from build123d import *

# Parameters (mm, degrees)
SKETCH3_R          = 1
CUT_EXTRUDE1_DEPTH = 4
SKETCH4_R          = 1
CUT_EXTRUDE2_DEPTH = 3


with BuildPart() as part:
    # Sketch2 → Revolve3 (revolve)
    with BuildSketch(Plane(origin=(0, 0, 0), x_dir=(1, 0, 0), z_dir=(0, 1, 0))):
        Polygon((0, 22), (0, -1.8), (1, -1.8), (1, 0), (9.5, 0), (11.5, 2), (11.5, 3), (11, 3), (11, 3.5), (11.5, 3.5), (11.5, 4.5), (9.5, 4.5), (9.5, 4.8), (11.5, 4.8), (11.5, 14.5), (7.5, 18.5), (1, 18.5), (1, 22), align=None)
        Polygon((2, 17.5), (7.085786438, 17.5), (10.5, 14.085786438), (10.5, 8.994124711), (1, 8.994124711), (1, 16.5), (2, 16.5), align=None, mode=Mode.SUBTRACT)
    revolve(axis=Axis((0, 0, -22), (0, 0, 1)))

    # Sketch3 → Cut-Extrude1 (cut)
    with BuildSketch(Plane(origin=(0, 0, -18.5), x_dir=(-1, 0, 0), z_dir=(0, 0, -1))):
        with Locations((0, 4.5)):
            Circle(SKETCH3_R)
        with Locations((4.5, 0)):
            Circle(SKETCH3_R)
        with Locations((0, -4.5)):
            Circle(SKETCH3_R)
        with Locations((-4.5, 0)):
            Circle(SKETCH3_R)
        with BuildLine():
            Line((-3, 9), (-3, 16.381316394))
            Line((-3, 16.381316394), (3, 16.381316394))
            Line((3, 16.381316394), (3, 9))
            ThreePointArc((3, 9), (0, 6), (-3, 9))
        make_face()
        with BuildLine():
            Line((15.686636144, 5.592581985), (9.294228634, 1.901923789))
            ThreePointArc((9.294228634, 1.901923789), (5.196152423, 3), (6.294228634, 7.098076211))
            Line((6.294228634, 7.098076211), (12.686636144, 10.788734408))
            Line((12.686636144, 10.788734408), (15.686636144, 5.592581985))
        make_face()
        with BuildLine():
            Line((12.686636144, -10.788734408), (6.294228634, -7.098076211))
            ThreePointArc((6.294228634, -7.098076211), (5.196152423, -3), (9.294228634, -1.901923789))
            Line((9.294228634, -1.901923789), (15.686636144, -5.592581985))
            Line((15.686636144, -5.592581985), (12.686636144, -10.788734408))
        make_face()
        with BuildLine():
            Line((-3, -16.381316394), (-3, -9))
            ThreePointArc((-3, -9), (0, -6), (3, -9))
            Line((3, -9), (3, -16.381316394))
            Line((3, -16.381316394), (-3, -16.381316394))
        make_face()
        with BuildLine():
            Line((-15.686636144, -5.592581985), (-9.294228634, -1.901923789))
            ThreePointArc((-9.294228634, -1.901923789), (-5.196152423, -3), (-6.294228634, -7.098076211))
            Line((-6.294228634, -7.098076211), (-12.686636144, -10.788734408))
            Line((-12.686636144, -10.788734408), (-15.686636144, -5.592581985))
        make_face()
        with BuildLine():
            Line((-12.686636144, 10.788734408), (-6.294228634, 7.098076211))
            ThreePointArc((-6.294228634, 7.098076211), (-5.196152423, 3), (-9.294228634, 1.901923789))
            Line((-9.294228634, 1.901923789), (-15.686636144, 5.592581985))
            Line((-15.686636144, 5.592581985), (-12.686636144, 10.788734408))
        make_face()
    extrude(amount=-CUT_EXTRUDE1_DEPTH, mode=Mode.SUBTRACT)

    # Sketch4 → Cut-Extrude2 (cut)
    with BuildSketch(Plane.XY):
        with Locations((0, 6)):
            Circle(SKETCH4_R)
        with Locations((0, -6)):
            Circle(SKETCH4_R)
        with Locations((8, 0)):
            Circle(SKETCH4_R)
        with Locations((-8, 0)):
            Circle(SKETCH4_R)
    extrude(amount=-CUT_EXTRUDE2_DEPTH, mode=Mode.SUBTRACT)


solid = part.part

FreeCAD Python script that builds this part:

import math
import FreeCAD as App
import Part
import Sketcher
from FreeCAD import Vector
Q = App.Units.Quantity

doc = App.newDocument("Part")
body = doc.addObject("PartDesign::Body", "Body")

# Sketch on XZ plane
sketch1 = body.newObject("Sketcher::SketchObject", "Sketch")
sketch1.AttachmentSupport = (doc.getObject("XZ_Plane"), [""])
sketch1.MapMode = "FlatFace"
sketch1.addGeometry(Part.LineSegment(Vector(0, -22, 0), Vector(0, 1.8, 0)), False)
sketch1.addGeometry(Part.LineSegment(Vector(0, 1.8, 0), Vector(1, 1.8, 0)), False)
sketch1.addGeometry(Part.LineSegment(Vector(1, 1.8, 0), Vector(1, 0, 0)), False)
sketch1.addGeometry(Part.LineSegment(Vector(1, 0, 0), Vector(9.5, 0, 0)), False)
sketch1.addGeometry(Part.LineSegment(Vector(9.5, 0, 0), Vector(11.5, -2, 0)), False)
sketch1.addGeometry(Part.LineSegment(Vector(11.5, -2, 0), Vector(11.5, -3, 0)), False)
sketch1.addGeometry(Part.LineSegment(Vector(11.5, -3, 0), Vector(11, -3, 0)), False)
sketch1.addGeometry(Part.LineSegment(Vector(11, -3, 0), Vector(11, -3.5, 0)), False)
sketch1.addGeometry(Part.LineSegment(Vector(11, -3.5, 0), Vector(11.5, -3.5, 0)), False)
sketch1.addGeometry(Part.LineSegment(Vector(11.5, -3.5, 0), Vector(11.5, -4.5, 0)), False)
sketch1.addGeometry(Part.LineSegment(Vector(11.5, -4.5, 0), Vector(9.5, -4.5, 0)), False)
sketch1.addGeometry(Part.LineSegment(Vector(9.5, -4.5, 0), Vector(9.5, -4.8, 0)), False)
sketch1.addGeometry(Part.LineSegment(Vector(9.5, -4.8, 0), Vector(11.5, -4.8, 0)), False)
sketch1.addGeometry(Part.LineSegment(Vector(11.5, -4.8, 0), Vector(11.5, -14.5, 0)), False)
sketch1.addGeometry(Part.LineSegment(Vector(11.5, -14.5, 0), Vector(7.5, -18.5, 0)), False)
sketch1.addGeometry(Part.LineSegment(Vector(7.5, -18.5, 0), Vector(1, -18.5, 0)), False)
sketch1.addGeometry(Part.LineSegment(Vector(1, -18.5, 0), Vector(1, -22, 0)), False)
sketch1.addGeometry(Part.LineSegment(Vector(1, -22, 0), Vector(0, -22, 0)), False)
sketch1.addGeometry(Part.LineSegment(Vector(2, -16.5, 0), Vector(2, -17.5, 0)), False)
sketch1.addGeometry(Part.LineSegment(Vector(2, -17.5, 0), Vector(7.085786, -17.5, 0)), False)
sketch1.addGeometry(Part.LineSegment(Vector(7.085786, -17.5, 0), Vector(10.5, -14.085786, 0)), False)
sketch1.addGeometry(Part.LineSegment(Vector(10.5, -14.085786, 0), Vector(10.5, -8.994125, 0)), False)
sketch1.addGeometry(Part.LineSegment(Vector(10.5, -8.994125, 0), Vector(1, -8.994125, 0)), False)
sketch1.addGeometry(Part.LineSegment(Vector(1, -8.994125, 0), Vector(1, -16.5, 0)), False)
sketch1.addGeometry(Part.LineSegment(Vector(1, -16.5, 0), Vector(2, -16.5, 0)), False)
sketch1.addConstraint(Sketcher.Constraint("Coincident", 0, 2, 1, 1))
sketch1.addConstraint(Sketcher.Constraint("Coincident", 1, 2, 2, 1))
sketch1.addConstraint(Sketcher.Constraint("Coincident", 2, 2, 3, 1))
sketch1.addConstraint(Sketcher.Constraint("Coincident", 3, 2, 4, 1))
sketch1.addConstraint(Sketcher.Constraint("Coincident", 4, 2, 5, 1))
sketch1.addConstraint(Sketcher.Constraint("Coincident", 5, 2, 6, 1))
sketch1.addConstraint(Sketcher.Constraint("Coincident", 6, 2, 7, 1))
sketch1.addConstraint(Sketcher.Constraint("Coincident", 7, 2, 8, 1))
sketch1.addConstraint(Sketcher.Constraint("Coincident", 8, 2, 9, 1))
sketch1.addConstraint(Sketcher.Constraint("Coincident", 9, 2, 10, 1))
sketch1.addConstraint(Sketcher.Constraint("Coincident", 10, 2, 11, 1))
sketch1.addConstraint(Sketcher.Constraint("Coincident", 11, 2, 12, 1))
sketch1.addConstraint(Sketcher.Constraint("Coincident", 12, 2, 13, 1))
sketch1.addConstraint(Sketcher.Constraint("Coincident", 13, 2, 14, 1))
sketch1.addConstraint(Sketcher.Constraint("Coincident", 14, 2, 15, 1))
sketch1.addConstraint(Sketcher.Constraint("Coincident", 15, 2, 16, 1))
sketch1.addConstraint(Sketcher.Constraint("Coincident", 16, 2, 17, 1))
sketch1.addConstraint(Sketcher.Constraint("Coincident", 17, 2, 0, 1))
sketch1.addConstraint(Sketcher.Constraint("Coincident", 18, 2, 19, 1))
sketch1.addConstraint(Sketcher.Constraint("Coincident", 19, 2, 20, 1))
sketch1.addConstraint(Sketcher.Constraint("Coincident", 20, 2, 21, 1))
sketch1.addConstraint(Sketcher.Constraint("Coincident", 21, 2, 22, 1))
sketch1.addConstraint(Sketcher.Constraint("Coincident", 22, 2, 23, 1))
sketch1.addConstraint(Sketcher.Constraint("Coincident", 23, 2, 24, 1))
sketch1.addConstraint(Sketcher.Constraint("Coincident", 24, 2, 18, 1))
sketch1.addConstraint(Sketcher.Constraint("Vertical", 0))
sketch1.addConstraint(Sketcher.Constraint("Horizontal", 1))
sketch1.addConstraint(Sketcher.Constraint("Vertical", 2))
sketch1.addConstraint(Sketcher.Constraint("Horizontal", 3))
sketch1.addConstraint(Sketcher.Constraint("Vertical", 5))
sketch1.addConstraint(Sketcher.Constraint("Horizontal", 6))
sketch1.addConstraint(Sketcher.Constraint("Vertical", 7))
sketch1.addConstraint(Sketcher.Constraint("Horizontal", 8))
sketch1.addConstraint(Sketcher.Constraint("Vertical", 9))
sketch1.addConstraint(Sketcher.Constraint("Horizontal", 10))
sketch1.addConstraint(Sketcher.Constraint("Vertical", 11))
sketch1.addConstraint(Sketcher.Constraint("Horizontal", 12))
sketch1.addConstraint(Sketcher.Constraint("Vertical", 13))
sketch1.addConstraint(Sketcher.Constraint("Horizontal", 15))
sketch1.addConstraint(Sketcher.Constraint("Vertical", 16))
sketch1.addConstraint(Sketcher.Constraint("Horizontal", 17))
sketch1.addConstraint(Sketcher.Constraint("Vertical", 18))
sketch1.addConstraint(Sketcher.Constraint("Horizontal", 19))
sketch1.addConstraint(Sketcher.Constraint("Vertical", 21))
sketch1.addConstraint(Sketcher.Constraint("Horizontal", 22))
sketch1.addConstraint(Sketcher.Constraint("Vertical", 23))
sketch1.addConstraint(Sketcher.Constraint("Horizontal", 24))
sketch1.addConstraint(Sketcher.Constraint("PointOnObject", 0, 2, -2))
sketch1.addConstraint(Sketcher.Constraint("PointOnObject", 2, 2, -1))
sketch1.addConstraint(Sketcher.Constraint("Perpendicular", 4, 14))
sketch1.addConstraint(Sketcher.Constraint("Parallel", 14, 20))
sketch1.addConstraint(Sketcher.Constraint("Vertical", 5, 2, 8, 2))
sketch1.addConstraint(Sketcher.Constraint("Vertical", 3, 2, 10, 2))
sketch1.addConstraint(Sketcher.Constraint("Vertical", 9, 2, 12, 2))
sketch1.addConstraint(Sketcher.Constraint("Vertical", 2, 2, 15, 2))
sketch1.addConstraint(Sketcher.Constraint("Vertical", 16, 2, 22, 2))
sketch1.addConstraint(Sketcher.Constraint("Equal", 17, 24))
sketch1.addConstraint(Sketcher.Constraint("Equal", 24, 5))
sketch1.addConstraint(Sketcher.Constraint("Equal", 8, 7))
sketch1.addConstraint(Sketcher.Constraint("Equal", 5, 9))
sketch1.addConstraint(Sketcher.Constraint("Equal", 9, 18))
sketch1.addConstraint(Sketcher.Constraint("DistanceX", 1, 1, 1, 2, 1.0))
sketch1.addConstraint(Sketcher.Constraint("DistanceX", 10, 2, 10, 1, 2.0))
sketch1.addConstraint(Sketcher.Constraint("Angle", 4, Q("-45 deg")))
sketch1.addConstraint(Sketcher.Constraint("DistanceX", 3, 1, 3, 2, 8.5))
sketch1.addConstraint(Sketcher.Constraint("DistanceX", 6, 2, 6, 1, 0.5))
sketch1.addConstraint(Sketcher.Constraint("DistanceX", 15, 2, 15, 1, 6.5))
sketch1.addConstraint(Sketcher.Constraint("DistanceX", 22, 2, 22, 1, 9.5))
sketch1.addConstraint(Sketcher.Constraint("DistanceY", 0, 1, 0, 2, 23.8))
sketch1.addConstraint(Sketcher.Constraint("DistanceY", 2, 2, 2, 1, 1.8))
sketch1.addConstraint(Sketcher.Constraint("DistanceY", 11, 2, 11, 1, 0.3))
sketch1.addConstraint(Sketcher.Constraint("DistanceY", 13, 2, 13, 1, 9.7))
sketch1.addConstraint(Sketcher.Constraint("DistanceY", 15, 2, 18, 2, 1.0))
sketch1.addConstraint(Sketcher.Constraint("DistanceY", 21, 1, 21, 2, 5.091662))
sketch1.addConstraint(Sketcher.Constraint("DistanceX", 19, 1, 19, 2, 5.085786))
revolution = body.newObject("PartDesign::Revolution", "Revolution")
revolution.Profile = sketch1
revolution.ReferenceAxis = (sketch1, ["V_Axis"])
revolution.Angle = 360

# Sketch on XY plane
sketch2 = body.newObject("Sketcher::SketchObject", "Sketch001")
sketch2.AttachmentSupport = (doc.getObject("XY_Plane"), [""])
sketch2.MapMode = "FlatFace"
sketch2.AttachmentOffset = App.Placement(Vector(0, 0, -18.5), App.Rotation())
sketch2.addGeometry(Part.Circle(Vector(0, 4.5, 0), Vector(0, 0, 1), 1), False)
sketch2.addGeometry(Part.Circle(Vector(-4.5, 0, 0), Vector(0, 0, 1), 1), False)
sketch2.addGeometry(Part.Circle(Vector(0, -4.5, 0), Vector(0, 0, 1), 1), False)
sketch2.addGeometry(Part.Circle(Vector(4.5, 0, 0), Vector(0, 0, 1), 1), False)
sketch2.addGeometry(Part.LineSegment(Vector(3, 16.381316, 0), Vector(3, 9, 0)), False)
sketch2.addGeometry(Part.ArcOfCircle(Part.Circle(Vector(0, 9, 0), Vector(0, 0, 1), 3), math.radians(180), math.radians(360)), False)
sketch2.addGeometry(Part.LineSegment(Vector(-3, 9, 0), Vector(-3, 16.381316, 0)), False)
sketch2.addGeometry(Part.LineSegment(Vector(-3, 16.381316, 0), Vector(3, 16.381316, 0)), False)
sketch2.addGeometry(Part.LineSegment(Vector(-9.294229, 1.901924, 0), Vector(-15.686636, 5.592582, 0)), False)
sketch2.addGeometry(Part.LineSegment(Vector(-15.686636, 5.592582, 0), Vector(-12.686636, 10.788734, 0)), False)
sketch2.addGeometry(Part.LineSegment(Vector(-12.686636, 10.788734, 0), Vector(-6.294229, 7.098076, 0)), False)
sketch2.addGeometry(Part.ArcOfCircle(Part.Circle(Vector(-7.794229, 4.5, 0), Vector(0, 0, 1), 3), math.radians(-120), math.radians(60)), False)
sketch2.addGeometry(Part.LineSegment(Vector(-6.294229, -7.098076, 0), Vector(-12.686636, -10.788734, 0)), False)
sketch2.addGeometry(Part.LineSegment(Vector(-12.686636, -10.788734, 0), Vector(-15.686636, -5.592582, 0)), False)
sketch2.addGeometry(Part.LineSegment(Vector(-15.686636, -5.592582, 0), Vector(-9.294229, -1.901924, 0)), False)
sketch2.addGeometry(Part.ArcOfCircle(Part.Circle(Vector(-7.794229, -4.5, 0), Vector(0, 0, 1), 3), math.radians(-60), math.radians(120)), False)
sketch2.addGeometry(Part.LineSegment(Vector(3, -9, 0), Vector(3, -16.381316, 0)), False)
sketch2.addGeometry(Part.LineSegment(Vector(3, -16.381316, 0), Vector(-3, -16.381316, 0)), False)
sketch2.addGeometry(Part.LineSegment(Vector(-3, -16.381316, 0), Vector(-3, -9, 0)), False)
sketch2.addGeometry(Part.ArcOfCircle(Part.Circle(Vector(0, -9, 0), Vector(0, 0, 1), 3), math.radians(0), math.radians(180)), False)
sketch2.addGeometry(Part.LineSegment(Vector(9.294229, -1.901924, 0), Vector(15.686636, -5.592582, 0)), False)
sketch2.addGeometry(Part.LineSegment(Vector(15.686636, -5.592582, 0), Vector(12.686636, -10.788734, 0)), False)
sketch2.addGeometry(Part.LineSegment(Vector(12.686636, -10.788734, 0), Vector(6.294229, -7.098076, 0)), False)
sketch2.addGeometry(Part.ArcOfCircle(Part.Circle(Vector(7.794229, -4.5, 0), Vector(0, 0, 1), 3), math.radians(60), math.radians(240)), False)
sketch2.addGeometry(Part.LineSegment(Vector(6.294229, 7.098076, 0), Vector(12.686636, 10.788734, 0)), False)
sketch2.addGeometry(Part.LineSegment(Vector(12.686636, 10.788734, 0), Vector(15.686636, 5.592582, 0)), False)
sketch2.addGeometry(Part.LineSegment(Vector(15.686636, 5.592582, 0), Vector(9.294229, 1.901924, 0)), False)
sketch2.addGeometry(Part.ArcOfCircle(Part.Circle(Vector(7.794229, 4.5, 0), Vector(0, 0, 1), 3), math.radians(120), math.radians(300)), False)
sketch2.addConstraint(Sketcher.Constraint("Tangent", 4, 2, 5, 2))
sketch2.addConstraint(Sketcher.Constraint("Tangent", 5, 1, 6, 1))
sketch2.addConstraint(Sketcher.Constraint("Coincident", 6, 2, 7, 1))
sketch2.addConstraint(Sketcher.Constraint("Coincident", 7, 2, 4, 1))
sketch2.addConstraint(Sketcher.Constraint("Coincident", 8, 2, 9, 1))
sketch2.addConstraint(Sketcher.Constraint("Coincident", 9, 2, 10, 1))
sketch2.addConstraint(Sketcher.Constraint("Tangent", 10, 2, 11, 2))
sketch2.addConstraint(Sketcher.Constraint("Tangent", 11, 1, 8, 1))
sketch2.addConstraint(Sketcher.Constraint("Coincident", 12, 2, 13, 1))
sketch2.addConstraint(Sketcher.Constraint("Coincident", 13, 2, 14, 1))
sketch2.addConstraint(Sketcher.Constraint("Tangent", 14, 2, 15, 2))
sketch2.addConstraint(Sketcher.Constraint("Tangent", 15, 1, 12, 1))
sketch2.addConstraint(Sketcher.Constraint("Coincident", 16, 2, 17, 1))
sketch2.addConstraint(Sketcher.Constraint("Coincident", 17, 2, 18, 1))
sketch2.addConstraint(Sketcher.Constraint("Tangent", 18, 2, 19, 2))
sketch2.addConstraint(Sketcher.Constraint("Tangent", 19, 1, 16, 1))
sketch2.addConstraint(Sketcher.Constraint("Coincident", 20, 2, 21, 1))
sketch2.addConstraint(Sketcher.Constraint("Coincident", 21, 2, 22, 1))
sketch2.addConstraint(Sketcher.Constraint("Tangent", 22, 2, 23, 2))
sketch2.addConstraint(Sketcher.Constraint("Tangent", 23, 1, 20, 1))
sketch2.addConstraint(Sketcher.Constraint("Coincident", 24, 2, 25, 1))
sketch2.addConstraint(Sketcher.Constraint("Coincident", 25, 2, 26, 1))
sketch2.addConstraint(Sketcher.Constraint("Tangent", 26, 2, 27, 2))
sketch2.addConstraint(Sketcher.Constraint("Tangent", 27, 1, 24, 1))
sketch2.addConstraint(Sketcher.Constraint("Vertical", 4))
sketch2.addConstraint(Sketcher.Constraint("Vertical", 6))
sketch2.addConstraint(Sketcher.Constraint("Horizontal", 7))
sketch2.addConstraint(Sketcher.Constraint("Vertical", 16))
sketch2.addConstraint(Sketcher.Constraint("Horizontal", 17))
sketch2.addConstraint(Sketcher.Constraint("Vertical", 18))
sketch2.addConstraint(Sketcher.Constraint("Equal", 0, 1))
sketch2.addConstraint(Sketcher.Constraint("Equal", 1, 2))
sketch2.addConstraint(Sketcher.Constraint("Equal", 2, 3))
sketch2.addConstraint(Sketcher.Constraint("Equal", 5, 11))
sketch2.addConstraint(Sketcher.Constraint("Equal", 11, 15))
sketch2.addConstraint(Sketcher.Constraint("Equal", 15, 19))
sketch2.addConstraint(Sketcher.Constraint("Equal", 19, 23))
sketch2.addConstraint(Sketcher.Constraint("Equal", 23, 27))
sketch2.addConstraint(Sketcher.Constraint("Symmetric", 0, 3, 2, 3, -1, 1))
sketch2.addConstraint(Sketcher.Constraint("Symmetric", 1, 3, 3, 3, -1, 1))
sketch2.addConstraint(Sketcher.Constraint("Symmetric", 5, 3, 19, 3, -1, 1))
sketch2.addConstraint(Sketcher.Constraint("Symmetric", 11, 3, 23, 3, -1, 1))
sketch2.addConstraint(Sketcher.Constraint("Symmetric", 15, 3, 27, 3, -1, 1))
sketch2.addConstraint(Sketcher.Constraint("Symmetric", 8, 2, 20, 2, -1, 1))
sketch2.addConstraint(Sketcher.Constraint("Symmetric", 9, 2, 21, 2, -1, 1))
sketch2.addConstraint(Sketcher.Constraint("Symmetric", 12, 2, 24, 2, -1, 1))
sketch2.addConstraint(Sketcher.Constraint("Symmetric", 13, 2, 25, 2, -1, 1))
sketch2.addConstraint(Sketcher.Constraint("Symmetric", 15, 3, 23, 3, -2))
sketch2.addConstraint(Sketcher.Constraint("Symmetric", 13, 2, 20, 2, -2))
sketch2.addConstraint(Sketcher.Constraint("Symmetric", 12, 2, 21, 2, -2))
sketch2.addConstraint(Sketcher.Constraint("Symmetric", 7, 2, 16, 2, -1))
sketch2.addConstraint(Sketcher.Constraint("PointOnObject", 0, 3, -2))
sketch2.addConstraint(Sketcher.Constraint("PointOnObject", 1, 3, -1))
sketch2.addConstraint(Sketcher.Constraint("Perpendicular", 8, 9))
sketch2.addConstraint(Sketcher.Constraint("Perpendicular", 9, 10))
sketch2.addConstraint(Sketcher.Constraint("Horizontal", 0, 3, 11, 3))
sketch2.addConstraint(Sketcher.Constraint("Diameter", 0, 2.0))
sketch2.addConstraint(Sketcher.Constraint("Radius", 5, 3.0))
sketch2.addConstraint(Sketcher.Constraint("Angle", 8, Q("150 deg")))
sketch2.addConstraint(Sketcher.Constraint("DistanceY", -1, 1, 5, 3, 9.0))
sketch2.addConstraint(Sketcher.Constraint("DistanceY", 2, 3, 0, 3, 9.0))
sketch2.addConstraint(Sketcher.Constraint("DistanceX", 1, 3, 3, 3, 9.0))
sketch2.addConstraint(Sketcher.Constraint("DistanceY", 4, 2, 4, 1, 7.381316))
sketch2.addConstraint(Sketcher.Constraint("DistanceX", 11, 3, -1, 1, 7.794229))
sketch2.addConstraint(Sketcher.Constraint("DistanceY", -1, 1, 8, 2, 5.592582))
pocket1 = body.newObject("PartDesign::Pocket", "Pocket")
pocket1.Profile = sketch2
pocket1.Length = 4
pocket1.Reversed = True

# Sketch on XY plane
sketch3 = body.newObject("Sketcher::SketchObject", "Sketch002")
sketch3.AttachmentSupport = (doc.getObject("XY_Plane"), [""])
sketch3.MapMode = "FlatFace"
sketch3.addGeometry(Part.Circle(Vector(0, 6, 0), Vector(0, 0, 1), 1), False)
sketch3.addGeometry(Part.Circle(Vector(0, -6, 0), Vector(0, 0, 1), 1), False)
sketch3.addGeometry(Part.Circle(Vector(8, 0, 0), Vector(0, 0, 1), 1), False)
sketch3.addGeometry(Part.Circle(Vector(-8, 0, 0), Vector(0, 0, 1), 1), False)
sketch3.addConstraint(Sketcher.Constraint("Equal", 0, 1))
sketch3.addConstraint(Sketcher.Constraint("Equal", 1, 2))
sketch3.addConstraint(Sketcher.Constraint("Equal", 2, 3))
sketch3.addConstraint(Sketcher.Constraint("Symmetric", 0, 3, 1, 3, -1, 1))
sketch3.addConstraint(Sketcher.Constraint("Symmetric", 2, 3, 3, 3, -1, 1))
sketch3.addConstraint(Sketcher.Constraint("PointOnObject", 0, 3, -2))
sketch3.addConstraint(Sketcher.Constraint("PointOnObject", 2, 3, -1))
sketch3.addConstraint(Sketcher.Constraint("Diameter", 0, 2.0))
sketch3.addConstraint(Sketcher.Constraint("DistanceY", -1, 1, 0, 3, 6.0))
sketch3.addConstraint(Sketcher.Constraint("DistanceX", -1, 1, 2, 3, 8.0))
pocket2 = body.newObject("PartDesign::Pocket", "Pocket001")
pocket2.Profile = sketch3
pocket2.Length = 3

doc.recompute()
